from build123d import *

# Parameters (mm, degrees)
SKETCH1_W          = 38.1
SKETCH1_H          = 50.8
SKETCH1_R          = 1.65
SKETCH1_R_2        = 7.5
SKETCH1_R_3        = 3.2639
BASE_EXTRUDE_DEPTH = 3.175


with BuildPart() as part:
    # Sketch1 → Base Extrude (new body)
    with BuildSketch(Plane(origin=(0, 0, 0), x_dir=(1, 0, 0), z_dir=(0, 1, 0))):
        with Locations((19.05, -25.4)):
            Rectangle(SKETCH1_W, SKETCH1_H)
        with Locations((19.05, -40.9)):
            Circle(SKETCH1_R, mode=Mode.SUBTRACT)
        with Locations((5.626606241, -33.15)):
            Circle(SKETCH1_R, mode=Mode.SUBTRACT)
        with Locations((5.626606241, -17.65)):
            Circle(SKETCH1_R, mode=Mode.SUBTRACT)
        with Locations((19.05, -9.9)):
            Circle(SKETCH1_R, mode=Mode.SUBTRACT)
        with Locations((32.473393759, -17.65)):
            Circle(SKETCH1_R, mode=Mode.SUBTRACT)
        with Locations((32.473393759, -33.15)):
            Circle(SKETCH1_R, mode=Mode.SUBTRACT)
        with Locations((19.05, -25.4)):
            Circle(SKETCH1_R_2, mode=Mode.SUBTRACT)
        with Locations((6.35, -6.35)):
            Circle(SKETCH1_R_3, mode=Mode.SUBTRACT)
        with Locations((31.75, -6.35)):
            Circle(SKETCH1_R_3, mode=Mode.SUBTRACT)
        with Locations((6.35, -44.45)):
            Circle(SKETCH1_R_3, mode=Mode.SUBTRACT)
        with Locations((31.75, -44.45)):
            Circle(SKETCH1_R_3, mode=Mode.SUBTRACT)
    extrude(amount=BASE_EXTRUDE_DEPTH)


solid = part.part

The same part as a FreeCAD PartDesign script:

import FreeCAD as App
import Part
import Sketcher
Q = App.Units.Quantity

doc = App.newDocument("Part")
body = doc.addObject("PartDesign::Body", "Body")

# Sketch on XZ plane
sketch1 = doc.addObject("Sketcher::SketchObject", "Sketch")
body.addObject(sketch1)
sketch1.AttachmentSupport = (doc.XZ_Plane, [""])
sketch1.MapMode = "FlatFace"
sketch1.addGeometry(Part.LineSegment(App.Vector(0, 0, 0), App.Vector(0, 50.8, 0)), False)
sketch1.addGeometry(Part.LineSegment(App.Vector(0, 50.8, 0), App.Vector(38.1, 50.8, 0)), False)
sketch1.addGeometry(Part.LineSegment(App.Vector(38.1, 50.8, 0), App.Vector(38.1, 0, 0)), False)
sketch1.addGeometry(Part.LineSegment(App.Vector(38.1, 0, 0), App.Vector(0, 0, 0)), False)
sketch1.addGeometry(Part.Circle(App.Vector(6.3, 44.5, 0), App.Vector(0, 0, 1), 3.3), False)
sketch1.addGeometry(Part.Circle(App.Vector(5.6, 33.1, 0), App.Vector(0, 0, 1), 1.6), False)
sketch1.addGeometry(Part.Circle(App.Vector(19.1, 40.9, 0), App.Vector(0, 0, 1), 1.6), False)
sketch1.addGeometry(Part.Circle(App.Vector(31.8, 44.5, 0), App.Vector(0, 0, 1), 3.3), False)
sketch1.addGeometry(Part.Circle(App.Vector(32.5, 33.1, 0), App.Vector(0, 0, 1), 1.6), False)
sketch1.addGeometry(Part.Circle(App.Vector(5.6, 17.6, 0), App.Vector(0, 0, 1), 1.6), False)
sketch1.addGeometry(Part.Circle(App.Vector(6.3, 6.3, 0), App.Vector(0, 0, 1), 3.3), False)
sketch1.addGeometry(Part.Circle(App.Vector(19.1, 25.4, 0), App.Vector(0, 0, 1), 7.5), False)
sketch1.addGeometry(Part.Circle(App.Vector(32.5, 17.6, 0), App.Vector(0, 0, 1), 1.6), False)
sketch1.addGeometry(Part.Circle(App.Vector(19.1, 9.9, 0), App.Vector(0, 0, 1), 1.6), False)
sketch1.addGeometry(Part.Circle(App.Vector(31.8, 6.3, 0), App.Vector(0, 0, 1), 3.3), False)
sketch1.addConstraint(Sketcher.Constraint("Coincident", 0, 2, 1, 1))
sketch1.addConstraint(Sketcher.Constraint("Coincident", 1, 2, 2, 1))
sketch1.addConstraint(Sketcher.Constraint("Coincident", 2, 2, 3, 1))
sketch1.addConstraint(Sketcher.Constraint("Coincident", 3, 2, 0, 1))
sketch1.addConstraint(Sketcher.Constraint("Vertical", 0))
sketch1.addConstraint(Sketcher.Constraint("Horizontal", 1))
sketch1.addConstraint(Sketcher.Constraint("Vertical", 2))
sketch1.addConstraint(Sketcher.Constraint("Horizontal", 3))
sketch1.addConstraint(Sketcher.Constraint("Coincident", 3, 2, -1, 1))
sketch1.addConstraint(Sketcher.Constraint("Equal", 5, 6))
sketch1.addConstraint(Sketcher.Constraint("Equal", 4, 7))
sketch1.addConstraint(Sketcher.Constraint("Equal", 6, 8))
sketch1.addConstraint(Sketcher.Constraint("Equal", 8, 9))
sketch1.addConstraint(Sketcher.Constraint("Equal", 7, 10))
sketch1.addConstraint(Sketcher.Constraint("Equal", 9, 12))
sketch1.addConstraint(Sketcher.Constraint("Equal", 12, 13))
sketch1.addConstraint(Sketcher.Constraint("Equal", 10, 14))
sketch1.addConstraint(Sketcher.Constraint("Horizontal", 4, 3, 7, 3))
sketch1.addConstraint(Sketcher.Constraint("Horizontal", 5, 3, 8, 3))
sketch1.addConstraint(Sketcher.Constraint("Horizontal", 9, 3, 12, 3))
sketch1.addConstraint(Sketcher.Constraint("Horizontal", 10, 3, 14, 3))
sketch1.addConstraint(Sketcher.Constraint("Vertical", 5, 3, 9, 3))
sketch1.addConstraint(Sketcher.Constraint("Vertical", 4, 3, 10, 3))
sketch1.addConstraint(Sketcher.Constraint("Vertical", 6, 3, 11, 3))
sketch1.addConstraint(Sketcher.Constraint("Vertical", 8, 3, 12, 3))
sketch1.addConstraint(Sketcher.Constraint("Vertical", 11, 3, 13, 3))
sketch1.addConstraint(Sketcher.Constraint("Vertical", 7, 3, 14, 3))
sketch1.addConstraint(Sketcher.Constraint("DistanceY", 0, 1, 0, 2, Q("2 in")))
sketch1.addConstraint(Sketcher.Constraint("Diameter", 4, Q("0.257 in")))
sketch1.addConstraint(Sketcher.Constraint("DistanceX", 1, 1, 1, 2, Q("1.5 in")))
sketch1.addConstraint(Sketcher.Constraint("DistanceY", -1, 1, 11, 3, Q("1 in")))
sketch1.addConstraint(Sketcher.Constraint("DistanceX", 4, 3, 7, 3, Q("1 in")))
sketch1.addConstraint(Sketcher.Constraint("DistanceX", 4, 3, 6, 3, Q("0.5 in")))
sketch1.addConstraint(Sketcher.Constraint("DistanceY", 10, 3, 4, 3, Q("1.5 in")))
sketch1.addConstraint(Sketcher.Constraint("Diameter", 5, Q("3.3 mm")))
sketch1.addConstraint(Sketcher.Constraint("Diameter", 11, Q("15 mm")))
sketch1.addConstraint(Sketcher.Constraint("DistanceX", -1, 1, 4, 3, Q("0.25 in")))
sketch1.addConstraint(Sketcher.Constraint("DistanceY", -1, 1, 4, 3, Q("1.75 in")))
sketch1.addConstraint(Sketcher.Constraint("DistanceY", -1, 1, 5, 3, Q("33.15 mm")))
sketch1.addConstraint(Sketcher.Constraint("DistanceY", -1, 1, 6, 3, Q("40.9 mm")))
sketch1.addConstraint(Sketcher.Constraint("DistanceY", -1, 1, 9, 3, Q("17.65 mm")))
sketch1.addConstraint(Sketcher.Constraint("DistanceY", -1, 1, 13, 3, Q("9.9 mm")))
sketch1.addConstraint(Sketcher.Constraint("DistanceX", -1, 1, 5, 3, Q("5.626606 mm")))
sketch1.addConstraint(Sketcher.Constraint("DistanceX", -1, 1, 8, 3, Q("32.473394 mm")))
pad1 = doc.addObject("PartDesign::Pad", "Pad")
body.addObject(pad1)
pad1.Profile = sketch1
pad1.Length = Q("0.125 in")
pad1.Reversed = True

doc.recompute()
